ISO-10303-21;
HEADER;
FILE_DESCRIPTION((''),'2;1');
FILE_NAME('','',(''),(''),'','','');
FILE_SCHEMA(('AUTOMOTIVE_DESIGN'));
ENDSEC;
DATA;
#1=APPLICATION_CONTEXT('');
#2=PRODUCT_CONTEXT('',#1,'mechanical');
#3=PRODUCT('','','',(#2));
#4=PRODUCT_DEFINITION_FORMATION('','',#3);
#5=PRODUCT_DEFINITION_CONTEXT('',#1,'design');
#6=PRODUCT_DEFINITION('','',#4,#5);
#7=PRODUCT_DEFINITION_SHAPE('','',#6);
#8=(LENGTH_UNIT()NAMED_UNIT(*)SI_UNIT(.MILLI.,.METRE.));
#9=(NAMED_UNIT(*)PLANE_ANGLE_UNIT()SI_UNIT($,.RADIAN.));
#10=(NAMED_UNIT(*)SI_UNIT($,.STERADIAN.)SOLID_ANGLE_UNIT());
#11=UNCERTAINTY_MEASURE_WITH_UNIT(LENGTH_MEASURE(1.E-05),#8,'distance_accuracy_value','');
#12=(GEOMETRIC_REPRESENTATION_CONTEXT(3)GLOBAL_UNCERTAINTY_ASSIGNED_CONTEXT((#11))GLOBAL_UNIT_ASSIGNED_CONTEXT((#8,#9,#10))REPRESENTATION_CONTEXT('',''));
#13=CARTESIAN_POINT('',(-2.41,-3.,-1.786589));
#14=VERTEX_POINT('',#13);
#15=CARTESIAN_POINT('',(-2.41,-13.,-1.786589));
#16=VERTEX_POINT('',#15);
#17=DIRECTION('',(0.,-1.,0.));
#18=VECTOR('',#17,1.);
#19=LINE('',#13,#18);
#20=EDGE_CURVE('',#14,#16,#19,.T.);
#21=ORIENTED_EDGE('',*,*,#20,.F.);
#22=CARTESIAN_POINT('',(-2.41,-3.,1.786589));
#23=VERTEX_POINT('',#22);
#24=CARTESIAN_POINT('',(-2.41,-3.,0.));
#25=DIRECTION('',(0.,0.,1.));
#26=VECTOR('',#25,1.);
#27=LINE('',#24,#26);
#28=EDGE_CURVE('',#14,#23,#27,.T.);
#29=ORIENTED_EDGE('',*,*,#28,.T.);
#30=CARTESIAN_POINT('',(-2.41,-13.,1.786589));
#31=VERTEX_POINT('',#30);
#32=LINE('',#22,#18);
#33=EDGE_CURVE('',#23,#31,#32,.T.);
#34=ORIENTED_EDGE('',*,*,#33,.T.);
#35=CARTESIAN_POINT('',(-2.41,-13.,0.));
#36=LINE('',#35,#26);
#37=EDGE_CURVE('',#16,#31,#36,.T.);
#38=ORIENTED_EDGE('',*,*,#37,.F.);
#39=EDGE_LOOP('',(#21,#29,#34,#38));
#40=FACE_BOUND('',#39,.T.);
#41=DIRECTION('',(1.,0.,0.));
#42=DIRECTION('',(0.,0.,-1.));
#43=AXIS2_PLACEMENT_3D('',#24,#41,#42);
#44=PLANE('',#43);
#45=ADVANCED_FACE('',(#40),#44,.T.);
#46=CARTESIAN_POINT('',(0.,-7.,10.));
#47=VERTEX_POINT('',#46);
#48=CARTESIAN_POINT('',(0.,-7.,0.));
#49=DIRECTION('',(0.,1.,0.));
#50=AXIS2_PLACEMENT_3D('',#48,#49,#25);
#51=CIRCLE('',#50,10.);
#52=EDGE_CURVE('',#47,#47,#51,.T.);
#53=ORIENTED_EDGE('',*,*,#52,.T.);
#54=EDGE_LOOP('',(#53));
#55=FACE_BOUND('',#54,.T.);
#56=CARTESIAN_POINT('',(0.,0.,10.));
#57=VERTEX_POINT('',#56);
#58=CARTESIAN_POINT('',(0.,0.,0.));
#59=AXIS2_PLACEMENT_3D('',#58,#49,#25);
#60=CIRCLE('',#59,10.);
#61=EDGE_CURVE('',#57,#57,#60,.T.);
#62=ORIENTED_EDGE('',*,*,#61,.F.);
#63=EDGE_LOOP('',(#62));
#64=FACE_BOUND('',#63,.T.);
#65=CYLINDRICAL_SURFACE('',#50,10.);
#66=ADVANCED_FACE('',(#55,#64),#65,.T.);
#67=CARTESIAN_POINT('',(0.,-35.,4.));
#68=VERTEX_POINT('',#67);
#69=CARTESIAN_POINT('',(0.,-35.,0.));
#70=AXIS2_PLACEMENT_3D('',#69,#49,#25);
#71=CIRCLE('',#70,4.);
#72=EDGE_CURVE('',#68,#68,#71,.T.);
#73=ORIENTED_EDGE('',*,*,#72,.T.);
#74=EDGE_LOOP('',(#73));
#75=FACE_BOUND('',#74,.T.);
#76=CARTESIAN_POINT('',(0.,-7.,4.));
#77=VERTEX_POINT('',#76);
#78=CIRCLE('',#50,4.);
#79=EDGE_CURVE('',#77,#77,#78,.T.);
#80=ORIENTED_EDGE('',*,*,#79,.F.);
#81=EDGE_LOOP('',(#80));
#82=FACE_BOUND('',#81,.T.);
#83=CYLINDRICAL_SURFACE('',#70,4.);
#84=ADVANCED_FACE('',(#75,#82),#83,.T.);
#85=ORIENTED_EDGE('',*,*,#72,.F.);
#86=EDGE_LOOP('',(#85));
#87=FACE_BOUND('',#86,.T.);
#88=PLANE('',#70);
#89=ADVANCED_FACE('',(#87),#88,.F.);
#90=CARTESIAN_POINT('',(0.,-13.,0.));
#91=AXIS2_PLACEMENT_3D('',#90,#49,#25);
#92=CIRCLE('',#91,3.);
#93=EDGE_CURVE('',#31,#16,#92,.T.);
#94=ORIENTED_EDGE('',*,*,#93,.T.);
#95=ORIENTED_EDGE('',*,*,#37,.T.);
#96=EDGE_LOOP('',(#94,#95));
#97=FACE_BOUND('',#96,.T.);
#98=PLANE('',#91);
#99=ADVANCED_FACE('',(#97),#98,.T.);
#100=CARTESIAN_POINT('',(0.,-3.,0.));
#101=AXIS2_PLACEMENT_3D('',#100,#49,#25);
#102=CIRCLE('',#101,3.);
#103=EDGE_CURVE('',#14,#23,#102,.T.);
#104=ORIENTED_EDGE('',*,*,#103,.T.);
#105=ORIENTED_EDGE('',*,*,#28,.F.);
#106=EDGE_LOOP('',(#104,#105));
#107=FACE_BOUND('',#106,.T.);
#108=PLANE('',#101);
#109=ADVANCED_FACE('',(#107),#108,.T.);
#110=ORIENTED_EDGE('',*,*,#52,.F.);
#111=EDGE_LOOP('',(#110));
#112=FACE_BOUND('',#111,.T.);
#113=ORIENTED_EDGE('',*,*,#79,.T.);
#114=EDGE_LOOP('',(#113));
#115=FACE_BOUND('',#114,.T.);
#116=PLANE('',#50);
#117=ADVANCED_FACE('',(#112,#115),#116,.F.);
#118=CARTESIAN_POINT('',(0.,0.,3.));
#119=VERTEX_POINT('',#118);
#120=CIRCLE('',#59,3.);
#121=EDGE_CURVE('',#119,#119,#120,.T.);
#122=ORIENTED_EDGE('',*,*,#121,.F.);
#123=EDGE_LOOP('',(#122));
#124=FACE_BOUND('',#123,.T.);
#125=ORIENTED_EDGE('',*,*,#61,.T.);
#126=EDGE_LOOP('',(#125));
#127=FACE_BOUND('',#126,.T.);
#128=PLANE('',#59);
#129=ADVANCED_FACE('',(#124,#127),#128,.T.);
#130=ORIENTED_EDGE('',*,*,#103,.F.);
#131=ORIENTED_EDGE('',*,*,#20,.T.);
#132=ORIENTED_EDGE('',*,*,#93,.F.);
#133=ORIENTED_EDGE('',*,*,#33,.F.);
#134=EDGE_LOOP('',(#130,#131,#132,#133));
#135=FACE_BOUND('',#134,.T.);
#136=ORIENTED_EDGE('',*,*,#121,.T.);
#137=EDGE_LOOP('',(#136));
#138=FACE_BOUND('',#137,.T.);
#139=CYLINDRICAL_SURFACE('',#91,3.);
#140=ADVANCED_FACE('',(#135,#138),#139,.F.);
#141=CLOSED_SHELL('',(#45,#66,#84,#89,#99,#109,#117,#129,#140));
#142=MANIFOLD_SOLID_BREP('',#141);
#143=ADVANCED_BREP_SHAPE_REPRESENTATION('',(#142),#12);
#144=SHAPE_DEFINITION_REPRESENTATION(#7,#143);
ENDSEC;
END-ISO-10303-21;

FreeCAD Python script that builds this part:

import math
import FreeCAD as App
import Part
import Sketcher

doc = App.newDocument("Part")
params = doc.addObject("Spreadsheet::Sheet", "Params")
for row, (alias, value) in enumerate([
    ("sketch1_diameter", "8 mm"),
    ("pad1_length", "35 mm"),
    ("sketch2_diameter", "6 mm"),
    ("pocket1_length", "13 mm"),
    ("sketch3_radius", "3 mm"),
    ("pad2_length", "10 mm"),
    ("sketch4_diameter", "20 mm"),
    ("sketch4_diameter2", "8 mm"),
    ("pad3_length", "7 mm"),
], start=1):
    params.set(f"A{row}", alias)
    params.set(f"B{row}", "=" + value)
    params.setAlias(f"B{row}", alias)

body = doc.addObject("PartDesign::Body", "Body")

sketch1 = body.newObject("Sketcher::SketchObject", "Sketch")
sketch1.AttachmentSupport = (doc.getObject("XZ_Plane"), [""])
sketch1.MapMode = "FlatFace"
sketch1.addGeometry(Part.Circle(App.Vector(0, 0, 0), App.Vector(0, 0, 1), 4), False)
sketch1.addConstraint(Sketcher.Constraint("Coincident", 0, 3, -1, 1))
sketch1.addConstraint(Sketcher.Constraint("Diameter", 0, 8.0))
sketch1.setExpression("Constraints[1]", "Params.sketch1_diameter")
pad1 = body.newObject("PartDesign::Pad", "Pad")
pad1.Profile = sketch1
pad1.setExpression("Length", "Params.pad1_length")

sketch2 = body.newObject("Sketcher::SketchObject", "Sketch001")
sketch2.AttachmentSupport = (doc.getObject("XZ_Plane"), [""])
sketch2.MapMode = "FlatFace"
sketch2.addGeometry(Part.Circle(App.Vector(0, 0, 0), App.Vector(0, 0, 1), 3), False)
sketch2.addConstraint(Sketcher.Constraint("Coincident", 0, 3, -1, 1))
sketch2.addConstraint(Sketcher.Constraint("Diameter", 0, 6.0))
sketch2.setExpression("Constraints[1]", "Params.sketch2_diameter")
pocket1 = body.newObject("PartDesign::Pocket", "Pocket")
pocket1.Profile = sketch2
pocket1.setExpression("Length", "Params.pocket1_length")
pocket1.Reversed = True

sketch3 = body.newObject("Sketcher::SketchObject", "Sketch002")
sketch3.AttachmentSupport = (doc.getObject("XZ_Plane"), [""])
sketch3.MapMode = "FlatFace"
sketch3.AttachmentOffset = App.Placement(App.Vector(0, 0, 3), App.Rotation())
sketch3.addGeometry(Part.LineSegment(App.Vector(-2.4, 1.8, 0), App.Vector(-2.4, -1.8, 0)), False)
sketch3.addGeometry(Part.ArcOfCircle(Part.Circle(App.Vector(0, 0, 0), App.Vector(0, 0, 1), 3), math.radians(143), math.radians(217)), False)
sketch3.addConstraint(Sketcher.Constraint("Coincident", 0, 1, 1, 1))
sketch3.addConstraint(Sketcher.Constraint("Coincident", 1, 2, 0, 2))
sketch3.addConstraint(Sketcher.Constraint("Vertical", 0))
sketch3.addConstraint(Sketcher.Constraint("Coincident", 1, 3, -1, 1))
sketch3.addConstraint(Sketcher.Constraint("Radius", 1, 3.0))
sketch3.addConstraint(Sketcher.Constraint("DistanceX", 0, 1, -1, 1, 2.41))
sketch3.setExpression("Constraints[4]", "Params.sketch3_radius")
pad2 = body.newObject("PartDesign::Pad", "Pad001")
pad2.Profile = sketch3
pad2.setExpression("Length", "Params.pad2_length")

sketch4 = body.newObject("Sketcher::SketchObject", "Sketch003")
sketch4.AttachmentSupport = (doc.getObject("XZ_Plane"), [""])
sketch4.MapMode = "FlatFace"
sketch4.addGeometry(Part.Circle(App.Vector(0, 0, 0), App.Vector(0, 0, 1), 10), False)
sketch4.addGeometry(Part.Circle(App.Vector(0, 0, 0), App.Vector(0, 0, 1), 4), False)
sketch4.addConstraint(Sketcher.Constraint("Coincident", 0, 3, -1, 1))
sketch4.addConstraint(Sketcher.Constraint("Coincident", 1, 3, -1, 1))
sketch4.addConstraint(Sketcher.Constraint("Diameter", 0, 20.0))
sketch4.addConstraint(Sketcher.Constraint("Diameter", 1, 8.0))
sketch4.setExpression("Constraints[2]", "Params.sketch4_diameter")
sketch4.setExpression("Constraints[3]", "Params.sketch4_diameter2")
pad3 = body.newObject("PartDesign::Pad", "Pad002")
pad3.Profile = sketch4
pad3.setExpression("Length", "Params.pad3_length")

doc.recompute()
